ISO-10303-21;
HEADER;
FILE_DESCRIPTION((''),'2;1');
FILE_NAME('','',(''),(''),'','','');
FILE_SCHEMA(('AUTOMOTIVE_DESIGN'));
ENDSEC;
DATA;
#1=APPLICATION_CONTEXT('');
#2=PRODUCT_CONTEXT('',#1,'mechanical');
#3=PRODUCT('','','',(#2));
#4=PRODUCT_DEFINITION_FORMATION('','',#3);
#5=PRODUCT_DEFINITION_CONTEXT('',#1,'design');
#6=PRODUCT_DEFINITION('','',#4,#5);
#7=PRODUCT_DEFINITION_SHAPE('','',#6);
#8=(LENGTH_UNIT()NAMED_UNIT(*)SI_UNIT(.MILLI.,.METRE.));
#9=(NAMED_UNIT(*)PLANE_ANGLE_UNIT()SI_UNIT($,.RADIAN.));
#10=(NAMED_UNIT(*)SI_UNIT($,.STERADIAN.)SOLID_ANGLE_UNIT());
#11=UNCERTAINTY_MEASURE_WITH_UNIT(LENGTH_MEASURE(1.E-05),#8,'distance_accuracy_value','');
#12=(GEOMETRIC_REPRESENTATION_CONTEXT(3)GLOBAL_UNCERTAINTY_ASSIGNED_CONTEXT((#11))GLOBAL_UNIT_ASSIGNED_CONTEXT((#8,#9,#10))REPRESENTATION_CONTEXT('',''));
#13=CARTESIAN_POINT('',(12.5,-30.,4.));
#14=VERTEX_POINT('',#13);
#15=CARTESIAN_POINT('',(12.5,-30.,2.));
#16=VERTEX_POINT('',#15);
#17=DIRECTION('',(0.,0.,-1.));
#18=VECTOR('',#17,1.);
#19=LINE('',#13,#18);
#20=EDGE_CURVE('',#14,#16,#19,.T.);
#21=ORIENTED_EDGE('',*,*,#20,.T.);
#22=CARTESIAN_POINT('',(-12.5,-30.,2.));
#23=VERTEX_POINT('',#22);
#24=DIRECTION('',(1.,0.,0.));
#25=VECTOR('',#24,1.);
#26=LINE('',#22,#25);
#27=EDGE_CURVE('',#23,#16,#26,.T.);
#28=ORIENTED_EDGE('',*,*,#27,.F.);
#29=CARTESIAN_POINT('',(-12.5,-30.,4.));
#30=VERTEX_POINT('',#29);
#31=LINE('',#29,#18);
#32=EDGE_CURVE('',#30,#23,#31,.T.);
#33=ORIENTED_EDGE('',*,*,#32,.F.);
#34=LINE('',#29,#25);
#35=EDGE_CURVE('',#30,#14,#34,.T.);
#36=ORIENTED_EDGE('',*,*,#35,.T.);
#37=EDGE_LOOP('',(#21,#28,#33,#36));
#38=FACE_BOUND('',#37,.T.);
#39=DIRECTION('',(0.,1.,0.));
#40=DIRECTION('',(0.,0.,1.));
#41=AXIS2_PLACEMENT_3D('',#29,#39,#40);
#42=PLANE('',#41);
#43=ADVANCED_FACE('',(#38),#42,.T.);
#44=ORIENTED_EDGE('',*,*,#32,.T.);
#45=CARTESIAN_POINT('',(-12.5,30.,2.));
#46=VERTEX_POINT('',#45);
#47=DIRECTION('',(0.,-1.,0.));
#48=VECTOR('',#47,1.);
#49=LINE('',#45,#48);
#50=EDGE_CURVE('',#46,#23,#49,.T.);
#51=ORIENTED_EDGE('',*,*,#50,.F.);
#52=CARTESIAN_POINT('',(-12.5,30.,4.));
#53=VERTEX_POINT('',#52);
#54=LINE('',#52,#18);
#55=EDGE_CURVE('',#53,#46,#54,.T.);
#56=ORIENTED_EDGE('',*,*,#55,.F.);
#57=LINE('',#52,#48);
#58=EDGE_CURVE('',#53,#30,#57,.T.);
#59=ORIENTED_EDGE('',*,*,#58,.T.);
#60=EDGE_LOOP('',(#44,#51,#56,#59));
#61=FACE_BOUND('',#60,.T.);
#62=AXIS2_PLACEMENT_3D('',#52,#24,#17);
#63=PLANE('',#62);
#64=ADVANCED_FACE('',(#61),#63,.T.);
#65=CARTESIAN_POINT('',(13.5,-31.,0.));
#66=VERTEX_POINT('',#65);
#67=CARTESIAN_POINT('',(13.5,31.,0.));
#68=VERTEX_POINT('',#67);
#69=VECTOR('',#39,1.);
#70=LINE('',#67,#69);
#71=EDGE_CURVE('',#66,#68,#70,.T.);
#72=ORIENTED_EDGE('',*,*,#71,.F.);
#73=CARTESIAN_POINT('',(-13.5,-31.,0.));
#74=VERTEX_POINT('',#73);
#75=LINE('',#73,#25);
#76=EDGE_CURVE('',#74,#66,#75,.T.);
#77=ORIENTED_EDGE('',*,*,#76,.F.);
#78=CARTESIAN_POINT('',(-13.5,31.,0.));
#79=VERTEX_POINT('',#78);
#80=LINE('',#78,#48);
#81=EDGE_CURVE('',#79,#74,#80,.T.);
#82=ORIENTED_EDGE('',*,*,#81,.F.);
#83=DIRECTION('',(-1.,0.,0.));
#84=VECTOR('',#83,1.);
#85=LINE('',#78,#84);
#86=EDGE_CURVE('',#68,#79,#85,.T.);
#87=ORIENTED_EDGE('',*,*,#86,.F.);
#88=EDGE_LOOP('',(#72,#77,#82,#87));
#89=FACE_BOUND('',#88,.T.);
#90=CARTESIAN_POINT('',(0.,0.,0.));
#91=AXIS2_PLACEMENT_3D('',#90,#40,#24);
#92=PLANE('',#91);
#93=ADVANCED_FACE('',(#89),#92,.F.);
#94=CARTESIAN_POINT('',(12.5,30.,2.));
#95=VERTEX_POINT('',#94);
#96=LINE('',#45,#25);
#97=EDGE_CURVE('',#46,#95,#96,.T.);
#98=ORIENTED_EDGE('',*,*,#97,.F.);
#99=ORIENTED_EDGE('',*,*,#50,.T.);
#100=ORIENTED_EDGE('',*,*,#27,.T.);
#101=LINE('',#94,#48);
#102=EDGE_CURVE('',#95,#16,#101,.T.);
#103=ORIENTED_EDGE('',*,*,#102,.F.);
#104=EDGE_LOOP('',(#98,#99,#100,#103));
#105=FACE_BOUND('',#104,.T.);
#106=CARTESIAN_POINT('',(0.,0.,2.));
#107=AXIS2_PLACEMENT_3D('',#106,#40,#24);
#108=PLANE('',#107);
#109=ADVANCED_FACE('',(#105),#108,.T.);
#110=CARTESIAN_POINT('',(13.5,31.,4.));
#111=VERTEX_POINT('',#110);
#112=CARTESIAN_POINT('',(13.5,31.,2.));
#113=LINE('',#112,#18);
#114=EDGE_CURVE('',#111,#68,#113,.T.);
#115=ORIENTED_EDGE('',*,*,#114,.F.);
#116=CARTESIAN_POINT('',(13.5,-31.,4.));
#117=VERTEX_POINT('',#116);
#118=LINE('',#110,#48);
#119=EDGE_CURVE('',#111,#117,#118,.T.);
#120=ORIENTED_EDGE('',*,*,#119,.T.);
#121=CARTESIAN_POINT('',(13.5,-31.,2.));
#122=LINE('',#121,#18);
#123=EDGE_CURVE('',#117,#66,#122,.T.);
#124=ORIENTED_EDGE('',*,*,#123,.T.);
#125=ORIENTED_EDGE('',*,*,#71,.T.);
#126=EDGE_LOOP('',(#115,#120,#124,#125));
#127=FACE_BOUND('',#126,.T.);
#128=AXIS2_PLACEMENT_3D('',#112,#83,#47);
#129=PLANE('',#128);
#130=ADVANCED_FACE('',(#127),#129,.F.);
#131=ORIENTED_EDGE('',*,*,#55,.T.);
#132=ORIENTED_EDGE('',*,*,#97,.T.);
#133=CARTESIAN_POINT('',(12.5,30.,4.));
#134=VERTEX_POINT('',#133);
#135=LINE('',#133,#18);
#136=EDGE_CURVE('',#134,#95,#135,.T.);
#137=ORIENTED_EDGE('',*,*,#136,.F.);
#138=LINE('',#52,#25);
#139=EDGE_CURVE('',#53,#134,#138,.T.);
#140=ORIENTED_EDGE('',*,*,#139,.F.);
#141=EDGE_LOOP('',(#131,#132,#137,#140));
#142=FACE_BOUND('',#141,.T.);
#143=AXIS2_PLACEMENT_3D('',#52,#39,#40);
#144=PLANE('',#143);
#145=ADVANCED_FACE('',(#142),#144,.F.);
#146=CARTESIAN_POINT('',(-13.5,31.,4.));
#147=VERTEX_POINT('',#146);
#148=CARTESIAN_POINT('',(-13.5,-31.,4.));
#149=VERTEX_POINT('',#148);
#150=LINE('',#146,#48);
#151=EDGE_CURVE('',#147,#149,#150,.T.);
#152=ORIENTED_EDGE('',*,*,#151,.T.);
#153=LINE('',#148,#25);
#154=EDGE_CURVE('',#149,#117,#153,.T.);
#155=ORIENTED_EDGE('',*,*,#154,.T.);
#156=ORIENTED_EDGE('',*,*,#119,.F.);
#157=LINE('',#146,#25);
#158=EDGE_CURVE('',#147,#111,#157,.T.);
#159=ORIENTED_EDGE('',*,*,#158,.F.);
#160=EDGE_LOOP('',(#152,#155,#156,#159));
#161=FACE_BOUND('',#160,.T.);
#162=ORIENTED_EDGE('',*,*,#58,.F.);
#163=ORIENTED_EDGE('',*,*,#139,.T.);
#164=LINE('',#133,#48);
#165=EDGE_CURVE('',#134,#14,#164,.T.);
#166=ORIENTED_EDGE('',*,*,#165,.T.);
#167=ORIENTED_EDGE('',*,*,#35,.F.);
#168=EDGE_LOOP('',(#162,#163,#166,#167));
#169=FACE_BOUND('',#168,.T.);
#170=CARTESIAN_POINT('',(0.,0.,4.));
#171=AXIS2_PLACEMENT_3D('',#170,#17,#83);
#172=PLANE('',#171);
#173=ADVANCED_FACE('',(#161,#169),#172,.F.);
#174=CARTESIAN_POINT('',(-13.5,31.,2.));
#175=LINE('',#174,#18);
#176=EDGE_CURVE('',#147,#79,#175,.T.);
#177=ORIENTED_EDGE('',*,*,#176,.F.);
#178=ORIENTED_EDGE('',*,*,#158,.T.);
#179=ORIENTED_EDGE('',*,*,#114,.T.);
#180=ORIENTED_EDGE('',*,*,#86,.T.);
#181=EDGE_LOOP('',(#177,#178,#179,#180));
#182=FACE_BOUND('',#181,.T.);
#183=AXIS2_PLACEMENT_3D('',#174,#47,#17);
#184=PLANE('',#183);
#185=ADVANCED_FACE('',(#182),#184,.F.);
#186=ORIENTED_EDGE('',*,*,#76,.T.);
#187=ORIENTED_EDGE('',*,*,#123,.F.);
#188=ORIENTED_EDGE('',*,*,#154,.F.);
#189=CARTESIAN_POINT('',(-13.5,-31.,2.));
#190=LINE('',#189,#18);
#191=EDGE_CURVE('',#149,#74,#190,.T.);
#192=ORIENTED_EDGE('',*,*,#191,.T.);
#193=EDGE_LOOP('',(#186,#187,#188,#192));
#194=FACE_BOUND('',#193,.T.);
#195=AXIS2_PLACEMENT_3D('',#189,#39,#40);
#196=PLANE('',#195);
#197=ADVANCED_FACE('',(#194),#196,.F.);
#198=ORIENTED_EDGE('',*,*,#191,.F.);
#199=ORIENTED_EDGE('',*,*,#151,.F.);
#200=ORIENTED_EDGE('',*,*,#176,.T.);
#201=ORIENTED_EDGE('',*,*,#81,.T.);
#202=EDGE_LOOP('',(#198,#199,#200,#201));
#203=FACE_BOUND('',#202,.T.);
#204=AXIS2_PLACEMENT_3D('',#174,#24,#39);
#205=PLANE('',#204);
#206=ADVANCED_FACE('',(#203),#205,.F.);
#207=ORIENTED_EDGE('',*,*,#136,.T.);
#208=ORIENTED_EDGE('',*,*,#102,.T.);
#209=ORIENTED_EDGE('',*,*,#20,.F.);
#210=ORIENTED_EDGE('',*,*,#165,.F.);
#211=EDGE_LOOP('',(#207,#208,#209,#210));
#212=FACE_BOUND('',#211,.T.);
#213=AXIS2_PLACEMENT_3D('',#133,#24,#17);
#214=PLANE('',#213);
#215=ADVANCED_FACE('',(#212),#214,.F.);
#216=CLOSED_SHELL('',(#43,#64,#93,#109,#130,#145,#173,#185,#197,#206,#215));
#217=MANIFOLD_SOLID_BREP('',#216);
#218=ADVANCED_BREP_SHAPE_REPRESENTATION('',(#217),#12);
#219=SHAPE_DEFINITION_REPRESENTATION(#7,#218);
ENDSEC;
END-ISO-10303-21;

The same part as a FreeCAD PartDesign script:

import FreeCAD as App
import Part
import Sketcher
Q = App.Units.Quantity

doc = App.newDocument("Part")
body = doc.addObject("PartDesign::Body", "Body")

# Sketch on XY plane
sketch1 = body.newObject("Sketcher::SketchObject", "Sketch")
sketch1.AttachmentSupport = (doc.getObject("XY_Plane"), [""])
sketch1.MapMode = "FlatFace"
sketch1.addGeometry([
    Part.LineSegment(App.Vector(-13.5, 31, 0), App.Vector(-13.5, -31, 0)),
    Part.LineSegment(App.Vector(-13.5, -31, 0), App.Vector(13.5, -31, 0)),
    Part.LineSegment(App.Vector(13.5, -31, 0), App.Vector(13.5, 31, 0)),
    Part.LineSegment(App.Vector(13.5, 31, 0), App.Vector(-13.5, 31, 0)),
], False)
sketch1.addConstraint([
    Sketcher.Constraint("Coincident", 0, 2, 1, 1),
    Sketcher.Constraint("Coincident", 1, 2, 2, 1),
    Sketcher.Constraint("Coincident", 2, 2, 3, 1),
    Sketcher.Constraint("Coincident", 3, 2, 0, 1),
    Sketcher.Constraint("Vertical", 0),
    Sketcher.Constraint("Horizontal", 1),
    Sketcher.Constraint("Vertical", 2),
    Sketcher.Constraint("Horizontal", 3),
    Sketcher.Constraint("Symmetric", 0, 2, 2, 2, -1, 1),
    Sketcher.Constraint("DistanceX", 1, 1, 1, 2, Q("27 mm")),
    Sketcher.Constraint("DistanceY", 0, 2, 0, 1, Q("62 mm")),
])
pad1 = body.newObject("PartDesign::Pad", "Pad")
pad1.Profile = sketch1
pad1.Length = 2

# Sketch on XY plane
sketch2 = body.newObject("Sketcher::SketchObject", "Sketch001")
sketch2.AttachmentSupport = (doc.getObject("XY_Plane"), [""])
sketch2.MapMode = "FlatFace"
sketch2.AttachmentOffset = App.Placement(App.Vector(0, 0, 2), App.Rotation())
sketch2.addGeometry([
    Part.LineSegment(App.Vector(-13.5, 31, 0), App.Vector(-13.5, -31, 0)),  # 0
    Part.LineSegment(App.Vector(-13.5, -31, 0), App.Vector(13.5, -31, 0)),  # 1
    Part.LineSegment(App.Vector(13.5, -31, 0), App.Vector(13.5, 31, 0)),  # 2
    Part.LineSegment(App.Vector(13.5, 31, 0), App.Vector(-13.5, 31, 0)),  # 3
    Part.LineSegment(App.Vector(12.5, -30, 0), App.Vector(-12.5, -30, 0)),  # 4
    Part.LineSegment(App.Vector(-12.5, -30, 0), App.Vector(-12.5, 30, 0)),  # 5
    Part.LineSegment(App.Vector(-12.5, 30, 0), App.Vector(12.5, 30, 0)),  # 6
    Part.LineSegment(App.Vector(12.5, 30, 0), App.Vector(12.5, -30, 0)),  # 7
], False)
sketch2.addConstraint([
    Sketcher.Constraint("Coincident", 0, 2, 1, 1),
    Sketcher.Constraint("Coincident", 1, 2, 2, 1),
    Sketcher.Constraint("Coincident", 2, 2, 3, 1),
    Sketcher.Constraint("Coincident", 3, 2, 0, 1),
    Sketcher.Constraint("Coincident", 4, 2, 5, 1),
    Sketcher.Constraint("Coincident", 5, 2, 6, 1),
    Sketcher.Constraint("Coincident", 6, 2, 7, 1),
    Sketcher.Constraint("Coincident", 7, 2, 4, 1),
    Sketcher.Constraint("Vertical", 0),
    Sketcher.Constraint("Horizontal", 1),
    Sketcher.Constraint("Vertical", 2),
    Sketcher.Constraint("Horizontal", 3),
    Sketcher.Constraint("Horizontal", 4),
    Sketcher.Constraint("Vertical", 5),
    Sketcher.Constraint("Horizontal", 6),
    Sketcher.Constraint("Vertical", 7),
    Sketcher.Constraint("Symmetric", 0, 2, 2, 2, -1, 1),
    Sketcher.Constraint("Symmetric", 4, 2, 6, 2, -1, 1),
    Sketcher.Constraint("DistanceX", 1, 1, 1, 2, Q("27 mm")),
    Sketcher.Constraint("DistanceX", 4, 2, 4, 1, Q("25 mm")),
    Sketcher.Constraint("DistanceY", 0, 2, 0, 1, Q("62 mm")),
    Sketcher.Constraint("DistanceY", 5, 1, 5, 2, Q("60 mm")),
])
pad2 = body.newObject("PartDesign::Pad", "Pad001")
pad2.Profile = sketch2
pad2.Length = 2

doc.recompute()
